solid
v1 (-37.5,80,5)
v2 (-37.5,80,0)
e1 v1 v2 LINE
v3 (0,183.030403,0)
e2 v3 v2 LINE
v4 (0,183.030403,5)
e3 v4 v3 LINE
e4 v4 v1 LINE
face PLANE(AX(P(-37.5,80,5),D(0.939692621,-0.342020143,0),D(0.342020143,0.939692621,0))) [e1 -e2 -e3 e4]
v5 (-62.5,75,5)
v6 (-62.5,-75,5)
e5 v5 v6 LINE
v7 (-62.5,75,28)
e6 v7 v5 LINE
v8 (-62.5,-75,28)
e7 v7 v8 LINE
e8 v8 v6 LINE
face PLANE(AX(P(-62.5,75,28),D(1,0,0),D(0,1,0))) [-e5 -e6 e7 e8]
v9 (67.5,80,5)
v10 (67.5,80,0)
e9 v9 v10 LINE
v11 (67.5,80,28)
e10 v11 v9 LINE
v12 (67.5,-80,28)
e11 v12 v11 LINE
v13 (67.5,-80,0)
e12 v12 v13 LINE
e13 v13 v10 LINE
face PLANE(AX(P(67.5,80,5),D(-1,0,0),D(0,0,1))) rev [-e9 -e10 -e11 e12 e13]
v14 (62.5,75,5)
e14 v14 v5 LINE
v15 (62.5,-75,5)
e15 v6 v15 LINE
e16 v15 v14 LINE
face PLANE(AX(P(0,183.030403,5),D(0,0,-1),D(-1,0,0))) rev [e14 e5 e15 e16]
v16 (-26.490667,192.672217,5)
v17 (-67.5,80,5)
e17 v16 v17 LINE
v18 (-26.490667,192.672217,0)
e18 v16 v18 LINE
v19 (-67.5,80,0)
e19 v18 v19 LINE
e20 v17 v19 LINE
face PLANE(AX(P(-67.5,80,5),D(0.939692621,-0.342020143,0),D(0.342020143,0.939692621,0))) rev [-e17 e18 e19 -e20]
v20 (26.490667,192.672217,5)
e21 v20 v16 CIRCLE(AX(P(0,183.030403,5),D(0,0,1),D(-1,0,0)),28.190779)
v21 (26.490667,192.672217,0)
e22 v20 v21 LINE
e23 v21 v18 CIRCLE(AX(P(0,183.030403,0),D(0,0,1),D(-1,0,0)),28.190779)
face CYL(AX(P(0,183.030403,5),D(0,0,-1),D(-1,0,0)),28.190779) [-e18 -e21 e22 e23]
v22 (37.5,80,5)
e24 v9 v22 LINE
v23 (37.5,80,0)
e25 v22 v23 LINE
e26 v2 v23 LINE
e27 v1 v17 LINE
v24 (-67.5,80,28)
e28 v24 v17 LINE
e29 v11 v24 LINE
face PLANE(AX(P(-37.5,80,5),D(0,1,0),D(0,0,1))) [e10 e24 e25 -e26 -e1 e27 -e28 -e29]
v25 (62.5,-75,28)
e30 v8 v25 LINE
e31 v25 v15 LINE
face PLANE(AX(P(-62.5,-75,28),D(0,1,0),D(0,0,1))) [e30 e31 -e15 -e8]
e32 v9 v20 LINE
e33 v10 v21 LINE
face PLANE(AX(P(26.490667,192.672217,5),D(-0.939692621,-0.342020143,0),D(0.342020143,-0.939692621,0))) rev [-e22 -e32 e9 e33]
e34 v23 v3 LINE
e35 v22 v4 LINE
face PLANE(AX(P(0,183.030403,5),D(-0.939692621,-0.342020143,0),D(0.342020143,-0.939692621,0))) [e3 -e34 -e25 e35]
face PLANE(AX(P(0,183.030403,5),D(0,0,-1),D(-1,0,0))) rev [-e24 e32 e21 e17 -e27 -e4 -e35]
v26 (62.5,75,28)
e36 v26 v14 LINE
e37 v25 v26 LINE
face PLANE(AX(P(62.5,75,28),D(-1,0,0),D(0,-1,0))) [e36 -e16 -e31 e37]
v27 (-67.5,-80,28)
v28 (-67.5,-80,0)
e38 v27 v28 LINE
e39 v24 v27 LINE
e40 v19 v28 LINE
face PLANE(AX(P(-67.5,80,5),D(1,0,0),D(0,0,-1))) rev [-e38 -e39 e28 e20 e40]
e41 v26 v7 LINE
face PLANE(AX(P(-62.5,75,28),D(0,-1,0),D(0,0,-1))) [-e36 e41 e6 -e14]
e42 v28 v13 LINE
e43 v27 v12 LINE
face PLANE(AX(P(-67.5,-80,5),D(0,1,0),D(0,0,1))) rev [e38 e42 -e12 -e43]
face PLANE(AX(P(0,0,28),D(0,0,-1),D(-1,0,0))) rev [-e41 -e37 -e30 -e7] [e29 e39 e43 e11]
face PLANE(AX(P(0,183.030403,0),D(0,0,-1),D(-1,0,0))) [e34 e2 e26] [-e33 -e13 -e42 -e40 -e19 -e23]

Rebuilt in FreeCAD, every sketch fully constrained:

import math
import FreeCAD as App
import Part
import Sketcher
Q = App.Units.Quantity


def add_polygon(sketch, points):
    """Adds a closed chain of lines whose ends are joined by coincident constraints."""
    first, n = sketch.GeometryCount, len(points)
    for a, b in zip(points, points[1:] + points[:1]):
        sketch.addGeometry(Part.LineSegment(App.Vector(*a, 0), App.Vector(*b, 0)), False)
    for i in range(n):
        sketch.addConstraint(Sketcher.Constraint("Coincident", first + i, 2, first + (i + 1) % n, 1))

doc = App.newDocument("Part")
body = doc.addObject("PartDesign::Body", "Body")

sketch1 = doc.addObject("Sketcher::SketchObject", "Sketch")
body.addObject(sketch1)
sketch1.AttachmentSupport = (doc.XY_Plane, [""])
sketch1.MapMode = "FlatFace"
sketch1.addGeometry(Part.LineSegment(App.Vector(-67.5, 80, 0), App.Vector(-67.5, -80, 0)), False)
sketch1.addGeometry(Part.LineSegment(App.Vector(-67.5, -80, 0), App.Vector(67.5, -80, 0)), False)
sketch1.addGeometry(Part.LineSegment(App.Vector(67.5, -80, 0), App.Vector(67.5, 80, 0)), False)
sketch1.addGeometry(Part.LineSegment(App.Vector(67.5, 80, 0), App.Vector(26.490667, 192.672217, 0)), False)
sketch1.addGeometry(Part.ArcOfCircle(Part.Circle(App.Vector(0, 183.030403, 0), App.Vector(0, 0, 1), 28.190779), math.radians(20), math.radians(160)), False)
sketch1.addGeometry(Part.LineSegment(App.Vector(-26.490667, 192.672217, 0), App.Vector(-67.5, 80, 0)), False)
add_polygon(sketch1, [(37.5, 80), (-37.5, 80), (0, 183.030403)])
sketch1.addConstraint([
    Sketcher.Constraint("Coincident", 0, 2, 1, 1),
    Sketcher.Constraint("Coincident", 1, 2, 2, 1),
    Sketcher.Constraint("Coincident", 2, 2, 3, 1),
    Sketcher.Constraint("Tangent", 3, 2, 4, 1),
    Sketcher.Constraint("Tangent", 4, 2, 5, 1),
    Sketcher.Constraint("Coincident", 5, 2, 0, 1),
    Sketcher.Constraint("Vertical", 0),
    Sketcher.Constraint("Horizontal", 1),
    Sketcher.Constraint("Vertical", 2),
    Sketcher.Constraint("Horizontal", 6),
    Sketcher.Constraint("Coincident", 7, 2, 4, 3),
    Sketcher.Constraint("Symmetric", 0, 2, 2, 2, -1, 1),
    Sketcher.Constraint("Symmetric", 3, 2, 4, 2, -2),
    Sketcher.Constraint("Parallel", 5, 7),
    Sketcher.Constraint("Parallel", 3, 8),
    Sketcher.Constraint("Horizontal", 5, 2, 6, 2),
    Sketcher.Constraint("DistanceX", 1, 1, 1, 2, Q("135 mm")),
    Sketcher.Constraint("DistanceX", 6, 2, 6, 1, Q("75 mm")),
    Sketcher.Constraint("DistanceY", 0, 2, 0, 1, Q("160 mm")),
    Sketcher.Constraint("Angle", 3, Q("110 deg")),
])
pad1 = doc.addObject("PartDesign::Pad", "Pad")
body.addObject(pad1)
pad1.Profile = sketch1
pad1.Length = 5

sketch2 = doc.addObject("Sketcher::SketchObject", "Sketch001")
body.addObject(sketch2)
sketch2.AttachmentSupport = (doc.XY_Plane, [""])
sketch2.MapMode = "FlatFace"
sketch2.AttachmentOffset = App.Placement(App.Vector(0, 0, 5), App.Rotation())
add_polygon(sketch2, [(-67.5, 80), (-67.5, -80), (67.5, -80), (67.5, 80)])
add_polygon(sketch2, [(62.5, -75), (-62.5, -75), (-62.5, 75), (62.5, 75)])
sketch2.addConstraint([
    Sketcher.Constraint("Vertical", 0),
    Sketcher.Constraint("Horizontal", 1),
    Sketcher.Constraint("Vertical", 2),
    Sketcher.Constraint("Horizontal", 3),
    Sketcher.Constraint("Horizontal", 4),
    Sketcher.Constraint("Vertical", 5),
    Sketcher.Constraint("Horizontal", 6),
    Sketcher.Constraint("Vertical", 7),
    Sketcher.Constraint("Symmetric", 0, 2, 2, 2, -1, 1),
    Sketcher.Constraint("Symmetric", 4, 2, 6, 2, -1, 1),
    Sketcher.Constraint("DistanceX", 1, 1, 1, 2, Q("135 mm")),
    Sketcher.Constraint("DistanceX", 4, 2, 4, 1, Q("125 mm")),
    Sketcher.Constraint("DistanceY", 0, 2, 0, 1, Q("160 mm")),
    Sketcher.Constraint("DistanceY", 5, 1, 5, 2, Q("150 mm")),
])
pad2 = doc.addObject("PartDesign::Pad", "Pad001")
body.addObject(pad2)
pad2.Profile = sketch2
pad2.Length = 23

doc.recompute()
